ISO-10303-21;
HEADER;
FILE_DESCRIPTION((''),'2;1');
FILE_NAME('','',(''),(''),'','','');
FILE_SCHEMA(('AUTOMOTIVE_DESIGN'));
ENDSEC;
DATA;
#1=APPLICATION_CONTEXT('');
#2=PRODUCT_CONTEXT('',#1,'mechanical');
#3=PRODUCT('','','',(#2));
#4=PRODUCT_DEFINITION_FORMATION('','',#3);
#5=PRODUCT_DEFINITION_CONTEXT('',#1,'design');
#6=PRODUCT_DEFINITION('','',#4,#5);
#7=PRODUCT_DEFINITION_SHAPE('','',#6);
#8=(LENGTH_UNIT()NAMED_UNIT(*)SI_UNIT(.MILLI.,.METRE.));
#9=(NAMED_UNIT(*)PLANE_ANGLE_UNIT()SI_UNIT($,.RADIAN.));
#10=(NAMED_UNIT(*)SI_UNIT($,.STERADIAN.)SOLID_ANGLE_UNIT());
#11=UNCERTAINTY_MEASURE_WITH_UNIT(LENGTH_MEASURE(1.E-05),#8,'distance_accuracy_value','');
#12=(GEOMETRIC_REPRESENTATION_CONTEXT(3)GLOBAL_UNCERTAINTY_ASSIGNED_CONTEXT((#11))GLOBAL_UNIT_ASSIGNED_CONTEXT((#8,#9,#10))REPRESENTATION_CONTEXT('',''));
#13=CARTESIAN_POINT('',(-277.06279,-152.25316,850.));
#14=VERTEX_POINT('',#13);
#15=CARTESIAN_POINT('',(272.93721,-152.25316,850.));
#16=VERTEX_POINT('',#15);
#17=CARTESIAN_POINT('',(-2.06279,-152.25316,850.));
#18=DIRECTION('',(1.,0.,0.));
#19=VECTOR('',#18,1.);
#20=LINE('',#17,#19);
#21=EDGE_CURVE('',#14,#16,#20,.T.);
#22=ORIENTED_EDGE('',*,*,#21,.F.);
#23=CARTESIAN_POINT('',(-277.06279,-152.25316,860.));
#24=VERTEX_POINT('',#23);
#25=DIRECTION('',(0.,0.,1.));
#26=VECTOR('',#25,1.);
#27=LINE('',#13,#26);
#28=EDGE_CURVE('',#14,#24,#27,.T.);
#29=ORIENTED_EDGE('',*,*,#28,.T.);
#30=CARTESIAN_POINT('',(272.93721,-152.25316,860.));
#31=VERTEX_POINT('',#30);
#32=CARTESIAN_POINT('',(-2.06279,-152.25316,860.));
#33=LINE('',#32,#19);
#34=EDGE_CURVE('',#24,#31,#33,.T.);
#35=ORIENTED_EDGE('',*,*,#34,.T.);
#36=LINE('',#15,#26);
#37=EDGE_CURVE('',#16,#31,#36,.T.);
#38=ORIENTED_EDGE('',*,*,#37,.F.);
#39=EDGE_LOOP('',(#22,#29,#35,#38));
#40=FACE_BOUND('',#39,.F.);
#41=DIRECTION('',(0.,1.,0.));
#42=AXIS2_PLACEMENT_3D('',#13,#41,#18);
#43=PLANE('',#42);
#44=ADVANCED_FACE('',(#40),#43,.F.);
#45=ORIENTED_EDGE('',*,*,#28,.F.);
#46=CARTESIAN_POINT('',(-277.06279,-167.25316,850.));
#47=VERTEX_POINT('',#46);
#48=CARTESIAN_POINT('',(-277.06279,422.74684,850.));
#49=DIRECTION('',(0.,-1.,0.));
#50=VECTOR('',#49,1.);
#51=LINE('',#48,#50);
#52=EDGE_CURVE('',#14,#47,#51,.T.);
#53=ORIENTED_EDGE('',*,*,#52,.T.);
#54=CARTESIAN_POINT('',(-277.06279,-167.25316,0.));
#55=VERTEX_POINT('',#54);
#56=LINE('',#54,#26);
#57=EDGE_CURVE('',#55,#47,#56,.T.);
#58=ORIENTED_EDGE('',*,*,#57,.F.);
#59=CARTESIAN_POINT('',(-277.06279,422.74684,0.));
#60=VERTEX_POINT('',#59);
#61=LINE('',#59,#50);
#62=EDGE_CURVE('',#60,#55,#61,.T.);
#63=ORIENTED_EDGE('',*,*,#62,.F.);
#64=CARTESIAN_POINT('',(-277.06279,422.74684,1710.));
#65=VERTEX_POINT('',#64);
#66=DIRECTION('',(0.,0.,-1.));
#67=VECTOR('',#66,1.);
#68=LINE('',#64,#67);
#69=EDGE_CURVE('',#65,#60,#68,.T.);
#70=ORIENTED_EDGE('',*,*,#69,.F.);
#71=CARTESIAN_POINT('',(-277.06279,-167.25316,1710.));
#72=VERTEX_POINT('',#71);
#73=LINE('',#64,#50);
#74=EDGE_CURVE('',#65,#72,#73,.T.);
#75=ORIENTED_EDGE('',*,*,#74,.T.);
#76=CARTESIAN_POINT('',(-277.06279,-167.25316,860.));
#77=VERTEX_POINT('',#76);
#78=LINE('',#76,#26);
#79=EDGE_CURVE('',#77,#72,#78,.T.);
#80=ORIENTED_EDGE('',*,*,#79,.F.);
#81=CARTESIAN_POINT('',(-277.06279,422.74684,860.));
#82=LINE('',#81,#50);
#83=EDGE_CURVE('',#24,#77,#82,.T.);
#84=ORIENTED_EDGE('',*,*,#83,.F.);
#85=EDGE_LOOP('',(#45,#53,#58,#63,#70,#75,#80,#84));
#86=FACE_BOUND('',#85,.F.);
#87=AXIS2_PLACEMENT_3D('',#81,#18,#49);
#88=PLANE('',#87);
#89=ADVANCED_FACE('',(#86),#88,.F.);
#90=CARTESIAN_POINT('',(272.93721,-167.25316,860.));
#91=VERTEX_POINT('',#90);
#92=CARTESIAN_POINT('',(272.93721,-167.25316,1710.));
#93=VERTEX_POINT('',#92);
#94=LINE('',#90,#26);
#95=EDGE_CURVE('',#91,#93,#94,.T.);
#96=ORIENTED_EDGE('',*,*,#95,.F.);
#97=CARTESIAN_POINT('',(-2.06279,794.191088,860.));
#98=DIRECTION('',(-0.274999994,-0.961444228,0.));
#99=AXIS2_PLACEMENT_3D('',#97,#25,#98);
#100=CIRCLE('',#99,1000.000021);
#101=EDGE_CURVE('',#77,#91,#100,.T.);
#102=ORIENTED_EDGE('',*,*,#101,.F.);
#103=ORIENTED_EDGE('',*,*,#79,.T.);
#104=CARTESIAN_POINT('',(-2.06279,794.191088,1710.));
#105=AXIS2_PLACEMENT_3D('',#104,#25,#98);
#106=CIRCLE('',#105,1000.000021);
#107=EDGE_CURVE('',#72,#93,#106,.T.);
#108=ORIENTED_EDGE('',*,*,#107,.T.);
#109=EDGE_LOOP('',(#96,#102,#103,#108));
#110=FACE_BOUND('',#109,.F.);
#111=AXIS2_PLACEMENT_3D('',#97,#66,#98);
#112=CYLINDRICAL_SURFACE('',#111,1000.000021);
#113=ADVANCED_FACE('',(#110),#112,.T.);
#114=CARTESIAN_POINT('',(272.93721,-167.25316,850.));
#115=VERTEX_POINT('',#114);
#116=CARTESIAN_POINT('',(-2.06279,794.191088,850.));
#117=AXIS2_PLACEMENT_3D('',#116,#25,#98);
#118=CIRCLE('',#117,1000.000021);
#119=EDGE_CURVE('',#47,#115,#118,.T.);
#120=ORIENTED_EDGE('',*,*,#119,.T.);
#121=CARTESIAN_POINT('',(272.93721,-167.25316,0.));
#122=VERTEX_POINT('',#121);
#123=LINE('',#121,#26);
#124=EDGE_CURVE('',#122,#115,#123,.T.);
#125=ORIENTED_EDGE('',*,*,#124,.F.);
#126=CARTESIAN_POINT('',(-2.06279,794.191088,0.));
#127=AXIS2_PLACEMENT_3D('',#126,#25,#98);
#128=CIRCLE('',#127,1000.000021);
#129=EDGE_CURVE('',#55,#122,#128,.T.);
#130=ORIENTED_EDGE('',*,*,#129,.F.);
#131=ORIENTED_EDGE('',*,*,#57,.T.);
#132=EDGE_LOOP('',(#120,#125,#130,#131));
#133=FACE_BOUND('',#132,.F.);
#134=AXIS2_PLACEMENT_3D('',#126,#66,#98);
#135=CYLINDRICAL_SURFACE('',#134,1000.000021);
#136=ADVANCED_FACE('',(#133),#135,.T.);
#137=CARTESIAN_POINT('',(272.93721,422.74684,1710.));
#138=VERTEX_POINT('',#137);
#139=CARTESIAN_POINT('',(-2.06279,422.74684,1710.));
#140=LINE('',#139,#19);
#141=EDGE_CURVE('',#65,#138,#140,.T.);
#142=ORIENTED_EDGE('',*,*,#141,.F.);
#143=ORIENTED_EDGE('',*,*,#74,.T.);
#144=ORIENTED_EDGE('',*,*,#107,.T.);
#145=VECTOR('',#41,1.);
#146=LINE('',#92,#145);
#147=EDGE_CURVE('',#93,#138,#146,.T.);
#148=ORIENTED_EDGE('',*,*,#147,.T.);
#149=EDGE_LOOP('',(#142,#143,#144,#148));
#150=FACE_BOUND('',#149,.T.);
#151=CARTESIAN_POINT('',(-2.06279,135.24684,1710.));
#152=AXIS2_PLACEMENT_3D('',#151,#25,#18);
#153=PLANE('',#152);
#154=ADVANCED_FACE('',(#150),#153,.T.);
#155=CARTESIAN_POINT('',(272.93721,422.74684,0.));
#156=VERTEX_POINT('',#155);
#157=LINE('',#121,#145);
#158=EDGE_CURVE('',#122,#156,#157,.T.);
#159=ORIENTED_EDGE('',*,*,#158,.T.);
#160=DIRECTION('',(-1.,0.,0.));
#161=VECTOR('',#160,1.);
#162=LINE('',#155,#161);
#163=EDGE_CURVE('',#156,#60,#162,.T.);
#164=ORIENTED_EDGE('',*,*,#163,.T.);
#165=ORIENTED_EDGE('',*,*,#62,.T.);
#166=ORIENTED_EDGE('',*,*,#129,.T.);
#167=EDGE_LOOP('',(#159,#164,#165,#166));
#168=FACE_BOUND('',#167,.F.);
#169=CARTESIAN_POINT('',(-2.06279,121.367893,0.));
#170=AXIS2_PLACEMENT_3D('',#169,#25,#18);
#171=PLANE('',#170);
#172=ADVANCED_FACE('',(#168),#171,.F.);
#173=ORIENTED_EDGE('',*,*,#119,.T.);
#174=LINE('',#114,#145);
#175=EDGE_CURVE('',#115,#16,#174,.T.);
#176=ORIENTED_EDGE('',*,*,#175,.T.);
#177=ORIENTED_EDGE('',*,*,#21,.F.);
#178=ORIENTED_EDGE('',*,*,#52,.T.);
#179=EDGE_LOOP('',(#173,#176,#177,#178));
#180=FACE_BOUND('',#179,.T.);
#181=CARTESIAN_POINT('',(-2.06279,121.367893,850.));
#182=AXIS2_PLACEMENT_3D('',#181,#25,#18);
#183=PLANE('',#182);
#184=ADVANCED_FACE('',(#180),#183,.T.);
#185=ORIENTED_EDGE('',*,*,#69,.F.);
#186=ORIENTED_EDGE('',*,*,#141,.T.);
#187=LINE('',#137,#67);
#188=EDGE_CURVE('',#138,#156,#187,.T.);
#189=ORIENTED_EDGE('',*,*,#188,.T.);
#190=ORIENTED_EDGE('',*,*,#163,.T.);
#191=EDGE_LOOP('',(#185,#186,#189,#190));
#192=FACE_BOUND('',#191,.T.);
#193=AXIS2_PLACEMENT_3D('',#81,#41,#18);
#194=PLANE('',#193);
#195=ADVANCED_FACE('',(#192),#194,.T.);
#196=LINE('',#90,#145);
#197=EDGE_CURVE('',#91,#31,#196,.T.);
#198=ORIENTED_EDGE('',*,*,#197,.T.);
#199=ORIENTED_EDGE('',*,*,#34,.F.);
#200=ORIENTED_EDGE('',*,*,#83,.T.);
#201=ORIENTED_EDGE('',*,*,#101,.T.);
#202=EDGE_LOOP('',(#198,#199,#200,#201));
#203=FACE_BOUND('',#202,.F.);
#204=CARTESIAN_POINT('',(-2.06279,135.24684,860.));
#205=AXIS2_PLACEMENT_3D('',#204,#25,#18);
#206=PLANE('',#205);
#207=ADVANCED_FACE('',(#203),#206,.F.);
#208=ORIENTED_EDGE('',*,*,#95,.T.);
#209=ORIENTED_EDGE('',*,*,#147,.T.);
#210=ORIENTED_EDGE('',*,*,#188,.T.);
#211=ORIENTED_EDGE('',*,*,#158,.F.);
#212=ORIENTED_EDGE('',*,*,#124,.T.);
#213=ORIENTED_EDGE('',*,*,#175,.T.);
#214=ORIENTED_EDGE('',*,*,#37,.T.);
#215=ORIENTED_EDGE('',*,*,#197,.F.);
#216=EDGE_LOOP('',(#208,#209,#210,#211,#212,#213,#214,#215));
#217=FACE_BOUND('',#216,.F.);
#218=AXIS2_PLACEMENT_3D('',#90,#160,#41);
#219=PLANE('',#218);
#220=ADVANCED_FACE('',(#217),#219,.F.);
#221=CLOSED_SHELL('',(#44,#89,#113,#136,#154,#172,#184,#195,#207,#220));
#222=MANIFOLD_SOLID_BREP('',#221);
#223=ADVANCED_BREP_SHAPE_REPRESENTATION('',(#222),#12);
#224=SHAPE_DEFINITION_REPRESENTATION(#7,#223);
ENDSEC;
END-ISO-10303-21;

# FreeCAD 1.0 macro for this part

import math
import FreeCAD as App
import Part
import Sketcher
Q = App.Units.Quantity


def add_polygon(sketch, points):
    """Adds a closed chain of lines whose ends are joined by coincident constraints."""
    first, n = sketch.GeometryCount, len(points)
    for a, b in zip(points, points[1:] + points[:1]):
        sketch.addGeometry(Part.LineSegment(App.Vector(*a, 0), App.Vector(*b, 0)), False)
    for i in range(n):
        sketch.addConstraint(Sketcher.Constraint("Coincident", first + i, 2, first + (i + 1) % n, 1))

doc = App.newDocument("Part")
body = doc.addObject("PartDesign::Body", "Body")

# Sketch on XY plane
sketch1 = body.newObject("Sketcher::SketchObject", "Sketch")
sketch1.AttachmentSupport = (doc.getObject("XY_Plane"), [""])
sketch1.MapMode = "FlatFace"
sketch1.addGeometry([
    Part.LineSegment(App.Vector(-277, 423, 0), App.Vector(-277, -167, 0)),
    Part.ArcOfCircle(Part.Circle(App.Vector(-2, 794, 0), App.Vector(0, 0, 1), 1000), math.radians(-106), math.radians(-74)),
    Part.LineSegment(App.Vector(273, -167, 0), App.Vector(273, 423, 0)),
    Part.LineSegment(App.Vector(273, 423, 0), App.Vector(-277, 423, 0)),
], False)
sketch1.addConstraint([
    Sketcher.Constraint("Coincident", 0, 2, 1, 1),
    Sketcher.Constraint("Coincident", 1, 2, 2, 1),
    Sketcher.Constraint("Coincident", 2, 2, 3, 1),
    Sketcher.Constraint("Coincident", 3, 2, 0, 1),
    Sketcher.Constraint("Vertical", 0),
    Sketcher.Constraint("Vertical", 2),
    Sketcher.Constraint("Horizontal", 3),
    Sketcher.Constraint("Horizontal", 0, 2, 1, 2),
    Sketcher.Constraint("DistanceX", 3, 2, 3, 1, Q("550 mm")),
    Sketcher.Constraint("DistanceY", 0, 2, 0, 1, Q("590 mm")),
    Sketcher.Constraint("Radius", 1, Q("1000.000021 mm")),
    Sketcher.Constraint("DistanceX", 1, 3, -1, 1, Q("2.06279 mm")),
    Sketcher.Constraint("DistanceY", -1, 1, 1, 3, Q("794.191088 mm")),
])
pad1 = body.newObject("PartDesign::Pad", "Pad")
pad1.Profile = sketch1
pad1.Length = 850

# Sketch on XY plane
sketch2 = body.newObject("Sketcher::SketchObject", "Sketch001")
sketch2.AttachmentSupport = (doc.getObject("XY_Plane"), [""])
sketch2.MapMode = "FlatFace"
sketch2.AttachmentOffset = App.Placement(App.Vector(0, 0, 850), App.Rotation())
add_polygon(sketch2, [(-277, 423), (-277, -152), (273, -152), (273, 423)])  # lines 0-3
sketch2.addConstraint([
    Sketcher.Constraint("Vertical", 0),
    Sketcher.Constraint("Horizontal", 1),
    Sketcher.Constraint("Vertical", 2),
    Sketcher.Constraint("Horizontal", 3),
    Sketcher.Constraint("DistanceX", 1, 1, 1, 2, Q("550 mm")),
    Sketcher.Constraint("DistanceY", 0, 2, 0, 1, Q("575 mm")),
    Sketcher.Constraint("DistanceX", 0, 2, -1, 1, Q("277.06279 mm")),
    Sketcher.Constraint("DistanceY", 0, 2, -1, 1, Q("152.25316 mm")),
])
pad2 = body.newObject("PartDesign::Pad", "Pad001")
pad2.Profile = sketch2
pad2.Length = 10

# Sketch on XY plane
sketch3 = body.newObject("Sketcher::SketchObject", "Sketch002")
sketch3.AttachmentSupport = (doc.getObject("XY_Plane"), [""])
sketch3.MapMode = "FlatFace"
sketch3.AttachmentOffset = App.Placement(App.Vector(0, 0, 860), App.Rotation())
sketch3.addGeometry([
    Part.LineSegment(App.Vector(-277, 423, 0), App.Vector(-277, -167, 0)),
    Part.ArcOfCircle(Part.Circle(App.Vector(-2, 794, 0), App.Vector(0, 0, 1), 1000), math.radians(-106), math.radians(-74)),
    Part.LineSegment(App.Vector(273, -167, 0), App.Vector(273, 423, 0)),
    Part.LineSegment(App.Vector(273, 423, 0), App.Vector(-277, 423, 0)),
], False)
sketch3.addConstraint([
    Sketcher.Constraint("Coincident", 0, 2, 1, 1),
    Sketcher.Constraint("Coincident", 1, 2, 2, 1),
    Sketcher.Constraint("Coincident", 2, 2, 3, 1),
    Sketcher.Constraint("Coincident", 3, 2, 0, 1),
    Sketcher.Constraint("Vertical", 0),
    Sketcher.Constraint("Vertical", 2),
    Sketcher.Constraint("Horizontal", 3),
    Sketcher.Constraint("Horizontal", 0, 2, 1, 2),
    Sketcher.Constraint("DistanceX", 3, 2, 3, 1, Q("550 mm")),
    Sketcher.Constraint("DistanceY", 0, 2, 0, 1, Q("590 mm")),
    Sketcher.Constraint("Radius", 1, Q("1000.000021 mm")),
    Sketcher.Constraint("DistanceX", 1, 3, -1, 1, Q("2.06279 mm")),
    Sketcher.Constraint("DistanceY", -1, 1, 1, 3, Q("794.191088 mm")),
])
pad3 = body.newObject("PartDesign::Pad", "Pad002")
pad3.Profile = sketch3
pad3.Length = 850

doc.recompute()
